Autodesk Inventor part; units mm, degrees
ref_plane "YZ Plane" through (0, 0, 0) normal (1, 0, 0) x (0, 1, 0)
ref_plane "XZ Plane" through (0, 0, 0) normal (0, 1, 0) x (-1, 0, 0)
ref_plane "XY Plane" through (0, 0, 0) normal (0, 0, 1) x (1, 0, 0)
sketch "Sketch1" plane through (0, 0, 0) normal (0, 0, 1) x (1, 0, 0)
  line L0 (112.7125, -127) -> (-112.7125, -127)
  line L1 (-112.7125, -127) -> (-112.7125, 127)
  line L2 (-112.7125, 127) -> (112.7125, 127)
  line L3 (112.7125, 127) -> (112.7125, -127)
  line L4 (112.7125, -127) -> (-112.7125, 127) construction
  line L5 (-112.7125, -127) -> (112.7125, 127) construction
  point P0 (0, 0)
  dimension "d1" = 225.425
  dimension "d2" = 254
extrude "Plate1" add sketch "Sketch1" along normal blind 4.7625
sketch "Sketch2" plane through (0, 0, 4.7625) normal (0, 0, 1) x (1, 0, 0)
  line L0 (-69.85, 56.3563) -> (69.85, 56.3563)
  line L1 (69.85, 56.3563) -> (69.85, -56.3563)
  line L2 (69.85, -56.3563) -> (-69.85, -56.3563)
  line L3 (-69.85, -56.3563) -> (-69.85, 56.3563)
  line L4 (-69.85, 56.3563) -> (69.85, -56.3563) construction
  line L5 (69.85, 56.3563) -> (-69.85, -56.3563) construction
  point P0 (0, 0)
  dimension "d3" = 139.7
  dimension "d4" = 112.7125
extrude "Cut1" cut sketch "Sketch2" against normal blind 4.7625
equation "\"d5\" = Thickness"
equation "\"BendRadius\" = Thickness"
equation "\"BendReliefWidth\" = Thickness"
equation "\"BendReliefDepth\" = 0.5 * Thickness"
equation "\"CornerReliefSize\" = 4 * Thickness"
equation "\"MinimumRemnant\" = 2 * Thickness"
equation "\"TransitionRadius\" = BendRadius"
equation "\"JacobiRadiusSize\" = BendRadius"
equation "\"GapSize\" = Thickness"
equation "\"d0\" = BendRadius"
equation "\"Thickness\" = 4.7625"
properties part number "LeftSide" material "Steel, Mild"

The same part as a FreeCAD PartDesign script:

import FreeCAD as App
import Part
import Sketcher

V = App.Vector
Q = App.Units.Quantity

doc = App.newDocument("Part")
body = doc.addObject("PartDesign::Body", "Body")

sketch1 = doc.addObject("Sketcher::SketchObject", "Sketch")
body.addObject(sketch1)
sketch1.AttachmentSupport = (doc.XY_Plane, [""])
sketch1.MapMode = "FlatFace"
sketch1.addGeometry(Part.LineSegment(V(-113, -127, 0), V(113, -127, 0)), False)
sketch1.addGeometry(Part.LineSegment(V(113, -127, 0), V(113, 127, 0)), False)
sketch1.addGeometry(Part.LineSegment(V(113, 127, 0), V(-113, 127, 0)), False)
sketch1.addGeometry(Part.LineSegment(V(-113, 127, 0), V(-113, -127, 0)), False)
sketch1.addConstraint(Sketcher.Constraint("Coincident", 0, 2, 1, 1))
sketch1.addConstraint(Sketcher.Constraint("Coincident", 1, 2, 2, 1))
sketch1.addConstraint(Sketcher.Constraint("Coincident", 2, 2, 3, 1))
sketch1.addConstraint(Sketcher.Constraint("Coincident", 3, 2, 0, 1))
sketch1.addConstraint(Sketcher.Constraint("Horizontal", 0))
sketch1.addConstraint(Sketcher.Constraint("Vertical", 1))
sketch1.addConstraint(Sketcher.Constraint("Horizontal", 2))
sketch1.addConstraint(Sketcher.Constraint("Vertical", 3))
sketch1.addConstraint(Sketcher.Constraint("Symmetric", 0, 2, 2, 2, -1, 1))
sketch1.addConstraint(Sketcher.Constraint("DistanceY", 1, 1, 1, 2, Q("10 in")))
sketch1.addConstraint(Sketcher.Constraint("DistanceX", 0, 1, 0, 2, Q("8.875 in")))
pad1 = doc.addObject("PartDesign::Pad", "Pad")
body.addObject(pad1)
pad1.Profile = sketch1
pad1.Length = Q("0.1875 in")

sketch2 = doc.addObject("Sketcher::SketchObject", "Sketch001")
body.addObject(sketch2)
sketch2.AttachmentSupport = (doc.XY_Plane, [""])
sketch2.MapMode = "FlatFace"
sketch2.AttachmentOffset = App.Placement(V(0, 0, 0.1875 * 25.4), App.Rotation())
sketch2.addGeometry(Part.LineSegment(V(70, 56, 0), V(-70, 56, 0)), False)
sketch2.addGeometry(Part.LineSegment(V(-70, 56, 0), V(-70, -56, 0)), False)
sketch2.addGeometry(Part.LineSegment(V(-70, -56, 0), V(70, -56, 0)), False)
sketch2.addGeometry(Part.LineSegment(V(70, -56, 0), V(70, 56, 0)), False)
sketch2.addConstraint(Sketcher.Constraint("Coincident", 0, 2, 1, 1))
sketch2.addConstraint(Sketcher.Constraint("Coincident", 1, 2, 2, 1))
sketch2.addConstraint(Sketcher.Constraint("Coincident", 2, 2, 3, 1))
sketch2.addConstraint(Sketcher.Constraint("Coincident", 3, 2, 0, 1))
sketch2.addConstraint(Sketcher.Constraint("Horizontal", 0))
sketch2.addConstraint(Sketcher.Constraint("Vertical", 1))
sketch2.addConstraint(Sketcher.Constraint("Horizontal", 2))
sketch2.addConstraint(Sketcher.Constraint("Vertical", 3))
sketch2.addConstraint(Sketcher.Constraint("Symmetric", 0, 2, 2, 2, -1, 1))
sketch2.addConstraint(Sketcher.Constraint("DistanceX", 0, 2, 0, 1, Q("5.5 in")))
sketch2.addConstraint(Sketcher.Constraint("DistanceY", 1, 2, 1, 1, Q("4.4375 in")))
pocket1 = doc.addObject("PartDesign::Pocket", "Pocket")
body.addObject(pocket1)
pocket1.Profile = sketch2
pocket1.Length = Q("0.1875 in")

doc.recompute()
